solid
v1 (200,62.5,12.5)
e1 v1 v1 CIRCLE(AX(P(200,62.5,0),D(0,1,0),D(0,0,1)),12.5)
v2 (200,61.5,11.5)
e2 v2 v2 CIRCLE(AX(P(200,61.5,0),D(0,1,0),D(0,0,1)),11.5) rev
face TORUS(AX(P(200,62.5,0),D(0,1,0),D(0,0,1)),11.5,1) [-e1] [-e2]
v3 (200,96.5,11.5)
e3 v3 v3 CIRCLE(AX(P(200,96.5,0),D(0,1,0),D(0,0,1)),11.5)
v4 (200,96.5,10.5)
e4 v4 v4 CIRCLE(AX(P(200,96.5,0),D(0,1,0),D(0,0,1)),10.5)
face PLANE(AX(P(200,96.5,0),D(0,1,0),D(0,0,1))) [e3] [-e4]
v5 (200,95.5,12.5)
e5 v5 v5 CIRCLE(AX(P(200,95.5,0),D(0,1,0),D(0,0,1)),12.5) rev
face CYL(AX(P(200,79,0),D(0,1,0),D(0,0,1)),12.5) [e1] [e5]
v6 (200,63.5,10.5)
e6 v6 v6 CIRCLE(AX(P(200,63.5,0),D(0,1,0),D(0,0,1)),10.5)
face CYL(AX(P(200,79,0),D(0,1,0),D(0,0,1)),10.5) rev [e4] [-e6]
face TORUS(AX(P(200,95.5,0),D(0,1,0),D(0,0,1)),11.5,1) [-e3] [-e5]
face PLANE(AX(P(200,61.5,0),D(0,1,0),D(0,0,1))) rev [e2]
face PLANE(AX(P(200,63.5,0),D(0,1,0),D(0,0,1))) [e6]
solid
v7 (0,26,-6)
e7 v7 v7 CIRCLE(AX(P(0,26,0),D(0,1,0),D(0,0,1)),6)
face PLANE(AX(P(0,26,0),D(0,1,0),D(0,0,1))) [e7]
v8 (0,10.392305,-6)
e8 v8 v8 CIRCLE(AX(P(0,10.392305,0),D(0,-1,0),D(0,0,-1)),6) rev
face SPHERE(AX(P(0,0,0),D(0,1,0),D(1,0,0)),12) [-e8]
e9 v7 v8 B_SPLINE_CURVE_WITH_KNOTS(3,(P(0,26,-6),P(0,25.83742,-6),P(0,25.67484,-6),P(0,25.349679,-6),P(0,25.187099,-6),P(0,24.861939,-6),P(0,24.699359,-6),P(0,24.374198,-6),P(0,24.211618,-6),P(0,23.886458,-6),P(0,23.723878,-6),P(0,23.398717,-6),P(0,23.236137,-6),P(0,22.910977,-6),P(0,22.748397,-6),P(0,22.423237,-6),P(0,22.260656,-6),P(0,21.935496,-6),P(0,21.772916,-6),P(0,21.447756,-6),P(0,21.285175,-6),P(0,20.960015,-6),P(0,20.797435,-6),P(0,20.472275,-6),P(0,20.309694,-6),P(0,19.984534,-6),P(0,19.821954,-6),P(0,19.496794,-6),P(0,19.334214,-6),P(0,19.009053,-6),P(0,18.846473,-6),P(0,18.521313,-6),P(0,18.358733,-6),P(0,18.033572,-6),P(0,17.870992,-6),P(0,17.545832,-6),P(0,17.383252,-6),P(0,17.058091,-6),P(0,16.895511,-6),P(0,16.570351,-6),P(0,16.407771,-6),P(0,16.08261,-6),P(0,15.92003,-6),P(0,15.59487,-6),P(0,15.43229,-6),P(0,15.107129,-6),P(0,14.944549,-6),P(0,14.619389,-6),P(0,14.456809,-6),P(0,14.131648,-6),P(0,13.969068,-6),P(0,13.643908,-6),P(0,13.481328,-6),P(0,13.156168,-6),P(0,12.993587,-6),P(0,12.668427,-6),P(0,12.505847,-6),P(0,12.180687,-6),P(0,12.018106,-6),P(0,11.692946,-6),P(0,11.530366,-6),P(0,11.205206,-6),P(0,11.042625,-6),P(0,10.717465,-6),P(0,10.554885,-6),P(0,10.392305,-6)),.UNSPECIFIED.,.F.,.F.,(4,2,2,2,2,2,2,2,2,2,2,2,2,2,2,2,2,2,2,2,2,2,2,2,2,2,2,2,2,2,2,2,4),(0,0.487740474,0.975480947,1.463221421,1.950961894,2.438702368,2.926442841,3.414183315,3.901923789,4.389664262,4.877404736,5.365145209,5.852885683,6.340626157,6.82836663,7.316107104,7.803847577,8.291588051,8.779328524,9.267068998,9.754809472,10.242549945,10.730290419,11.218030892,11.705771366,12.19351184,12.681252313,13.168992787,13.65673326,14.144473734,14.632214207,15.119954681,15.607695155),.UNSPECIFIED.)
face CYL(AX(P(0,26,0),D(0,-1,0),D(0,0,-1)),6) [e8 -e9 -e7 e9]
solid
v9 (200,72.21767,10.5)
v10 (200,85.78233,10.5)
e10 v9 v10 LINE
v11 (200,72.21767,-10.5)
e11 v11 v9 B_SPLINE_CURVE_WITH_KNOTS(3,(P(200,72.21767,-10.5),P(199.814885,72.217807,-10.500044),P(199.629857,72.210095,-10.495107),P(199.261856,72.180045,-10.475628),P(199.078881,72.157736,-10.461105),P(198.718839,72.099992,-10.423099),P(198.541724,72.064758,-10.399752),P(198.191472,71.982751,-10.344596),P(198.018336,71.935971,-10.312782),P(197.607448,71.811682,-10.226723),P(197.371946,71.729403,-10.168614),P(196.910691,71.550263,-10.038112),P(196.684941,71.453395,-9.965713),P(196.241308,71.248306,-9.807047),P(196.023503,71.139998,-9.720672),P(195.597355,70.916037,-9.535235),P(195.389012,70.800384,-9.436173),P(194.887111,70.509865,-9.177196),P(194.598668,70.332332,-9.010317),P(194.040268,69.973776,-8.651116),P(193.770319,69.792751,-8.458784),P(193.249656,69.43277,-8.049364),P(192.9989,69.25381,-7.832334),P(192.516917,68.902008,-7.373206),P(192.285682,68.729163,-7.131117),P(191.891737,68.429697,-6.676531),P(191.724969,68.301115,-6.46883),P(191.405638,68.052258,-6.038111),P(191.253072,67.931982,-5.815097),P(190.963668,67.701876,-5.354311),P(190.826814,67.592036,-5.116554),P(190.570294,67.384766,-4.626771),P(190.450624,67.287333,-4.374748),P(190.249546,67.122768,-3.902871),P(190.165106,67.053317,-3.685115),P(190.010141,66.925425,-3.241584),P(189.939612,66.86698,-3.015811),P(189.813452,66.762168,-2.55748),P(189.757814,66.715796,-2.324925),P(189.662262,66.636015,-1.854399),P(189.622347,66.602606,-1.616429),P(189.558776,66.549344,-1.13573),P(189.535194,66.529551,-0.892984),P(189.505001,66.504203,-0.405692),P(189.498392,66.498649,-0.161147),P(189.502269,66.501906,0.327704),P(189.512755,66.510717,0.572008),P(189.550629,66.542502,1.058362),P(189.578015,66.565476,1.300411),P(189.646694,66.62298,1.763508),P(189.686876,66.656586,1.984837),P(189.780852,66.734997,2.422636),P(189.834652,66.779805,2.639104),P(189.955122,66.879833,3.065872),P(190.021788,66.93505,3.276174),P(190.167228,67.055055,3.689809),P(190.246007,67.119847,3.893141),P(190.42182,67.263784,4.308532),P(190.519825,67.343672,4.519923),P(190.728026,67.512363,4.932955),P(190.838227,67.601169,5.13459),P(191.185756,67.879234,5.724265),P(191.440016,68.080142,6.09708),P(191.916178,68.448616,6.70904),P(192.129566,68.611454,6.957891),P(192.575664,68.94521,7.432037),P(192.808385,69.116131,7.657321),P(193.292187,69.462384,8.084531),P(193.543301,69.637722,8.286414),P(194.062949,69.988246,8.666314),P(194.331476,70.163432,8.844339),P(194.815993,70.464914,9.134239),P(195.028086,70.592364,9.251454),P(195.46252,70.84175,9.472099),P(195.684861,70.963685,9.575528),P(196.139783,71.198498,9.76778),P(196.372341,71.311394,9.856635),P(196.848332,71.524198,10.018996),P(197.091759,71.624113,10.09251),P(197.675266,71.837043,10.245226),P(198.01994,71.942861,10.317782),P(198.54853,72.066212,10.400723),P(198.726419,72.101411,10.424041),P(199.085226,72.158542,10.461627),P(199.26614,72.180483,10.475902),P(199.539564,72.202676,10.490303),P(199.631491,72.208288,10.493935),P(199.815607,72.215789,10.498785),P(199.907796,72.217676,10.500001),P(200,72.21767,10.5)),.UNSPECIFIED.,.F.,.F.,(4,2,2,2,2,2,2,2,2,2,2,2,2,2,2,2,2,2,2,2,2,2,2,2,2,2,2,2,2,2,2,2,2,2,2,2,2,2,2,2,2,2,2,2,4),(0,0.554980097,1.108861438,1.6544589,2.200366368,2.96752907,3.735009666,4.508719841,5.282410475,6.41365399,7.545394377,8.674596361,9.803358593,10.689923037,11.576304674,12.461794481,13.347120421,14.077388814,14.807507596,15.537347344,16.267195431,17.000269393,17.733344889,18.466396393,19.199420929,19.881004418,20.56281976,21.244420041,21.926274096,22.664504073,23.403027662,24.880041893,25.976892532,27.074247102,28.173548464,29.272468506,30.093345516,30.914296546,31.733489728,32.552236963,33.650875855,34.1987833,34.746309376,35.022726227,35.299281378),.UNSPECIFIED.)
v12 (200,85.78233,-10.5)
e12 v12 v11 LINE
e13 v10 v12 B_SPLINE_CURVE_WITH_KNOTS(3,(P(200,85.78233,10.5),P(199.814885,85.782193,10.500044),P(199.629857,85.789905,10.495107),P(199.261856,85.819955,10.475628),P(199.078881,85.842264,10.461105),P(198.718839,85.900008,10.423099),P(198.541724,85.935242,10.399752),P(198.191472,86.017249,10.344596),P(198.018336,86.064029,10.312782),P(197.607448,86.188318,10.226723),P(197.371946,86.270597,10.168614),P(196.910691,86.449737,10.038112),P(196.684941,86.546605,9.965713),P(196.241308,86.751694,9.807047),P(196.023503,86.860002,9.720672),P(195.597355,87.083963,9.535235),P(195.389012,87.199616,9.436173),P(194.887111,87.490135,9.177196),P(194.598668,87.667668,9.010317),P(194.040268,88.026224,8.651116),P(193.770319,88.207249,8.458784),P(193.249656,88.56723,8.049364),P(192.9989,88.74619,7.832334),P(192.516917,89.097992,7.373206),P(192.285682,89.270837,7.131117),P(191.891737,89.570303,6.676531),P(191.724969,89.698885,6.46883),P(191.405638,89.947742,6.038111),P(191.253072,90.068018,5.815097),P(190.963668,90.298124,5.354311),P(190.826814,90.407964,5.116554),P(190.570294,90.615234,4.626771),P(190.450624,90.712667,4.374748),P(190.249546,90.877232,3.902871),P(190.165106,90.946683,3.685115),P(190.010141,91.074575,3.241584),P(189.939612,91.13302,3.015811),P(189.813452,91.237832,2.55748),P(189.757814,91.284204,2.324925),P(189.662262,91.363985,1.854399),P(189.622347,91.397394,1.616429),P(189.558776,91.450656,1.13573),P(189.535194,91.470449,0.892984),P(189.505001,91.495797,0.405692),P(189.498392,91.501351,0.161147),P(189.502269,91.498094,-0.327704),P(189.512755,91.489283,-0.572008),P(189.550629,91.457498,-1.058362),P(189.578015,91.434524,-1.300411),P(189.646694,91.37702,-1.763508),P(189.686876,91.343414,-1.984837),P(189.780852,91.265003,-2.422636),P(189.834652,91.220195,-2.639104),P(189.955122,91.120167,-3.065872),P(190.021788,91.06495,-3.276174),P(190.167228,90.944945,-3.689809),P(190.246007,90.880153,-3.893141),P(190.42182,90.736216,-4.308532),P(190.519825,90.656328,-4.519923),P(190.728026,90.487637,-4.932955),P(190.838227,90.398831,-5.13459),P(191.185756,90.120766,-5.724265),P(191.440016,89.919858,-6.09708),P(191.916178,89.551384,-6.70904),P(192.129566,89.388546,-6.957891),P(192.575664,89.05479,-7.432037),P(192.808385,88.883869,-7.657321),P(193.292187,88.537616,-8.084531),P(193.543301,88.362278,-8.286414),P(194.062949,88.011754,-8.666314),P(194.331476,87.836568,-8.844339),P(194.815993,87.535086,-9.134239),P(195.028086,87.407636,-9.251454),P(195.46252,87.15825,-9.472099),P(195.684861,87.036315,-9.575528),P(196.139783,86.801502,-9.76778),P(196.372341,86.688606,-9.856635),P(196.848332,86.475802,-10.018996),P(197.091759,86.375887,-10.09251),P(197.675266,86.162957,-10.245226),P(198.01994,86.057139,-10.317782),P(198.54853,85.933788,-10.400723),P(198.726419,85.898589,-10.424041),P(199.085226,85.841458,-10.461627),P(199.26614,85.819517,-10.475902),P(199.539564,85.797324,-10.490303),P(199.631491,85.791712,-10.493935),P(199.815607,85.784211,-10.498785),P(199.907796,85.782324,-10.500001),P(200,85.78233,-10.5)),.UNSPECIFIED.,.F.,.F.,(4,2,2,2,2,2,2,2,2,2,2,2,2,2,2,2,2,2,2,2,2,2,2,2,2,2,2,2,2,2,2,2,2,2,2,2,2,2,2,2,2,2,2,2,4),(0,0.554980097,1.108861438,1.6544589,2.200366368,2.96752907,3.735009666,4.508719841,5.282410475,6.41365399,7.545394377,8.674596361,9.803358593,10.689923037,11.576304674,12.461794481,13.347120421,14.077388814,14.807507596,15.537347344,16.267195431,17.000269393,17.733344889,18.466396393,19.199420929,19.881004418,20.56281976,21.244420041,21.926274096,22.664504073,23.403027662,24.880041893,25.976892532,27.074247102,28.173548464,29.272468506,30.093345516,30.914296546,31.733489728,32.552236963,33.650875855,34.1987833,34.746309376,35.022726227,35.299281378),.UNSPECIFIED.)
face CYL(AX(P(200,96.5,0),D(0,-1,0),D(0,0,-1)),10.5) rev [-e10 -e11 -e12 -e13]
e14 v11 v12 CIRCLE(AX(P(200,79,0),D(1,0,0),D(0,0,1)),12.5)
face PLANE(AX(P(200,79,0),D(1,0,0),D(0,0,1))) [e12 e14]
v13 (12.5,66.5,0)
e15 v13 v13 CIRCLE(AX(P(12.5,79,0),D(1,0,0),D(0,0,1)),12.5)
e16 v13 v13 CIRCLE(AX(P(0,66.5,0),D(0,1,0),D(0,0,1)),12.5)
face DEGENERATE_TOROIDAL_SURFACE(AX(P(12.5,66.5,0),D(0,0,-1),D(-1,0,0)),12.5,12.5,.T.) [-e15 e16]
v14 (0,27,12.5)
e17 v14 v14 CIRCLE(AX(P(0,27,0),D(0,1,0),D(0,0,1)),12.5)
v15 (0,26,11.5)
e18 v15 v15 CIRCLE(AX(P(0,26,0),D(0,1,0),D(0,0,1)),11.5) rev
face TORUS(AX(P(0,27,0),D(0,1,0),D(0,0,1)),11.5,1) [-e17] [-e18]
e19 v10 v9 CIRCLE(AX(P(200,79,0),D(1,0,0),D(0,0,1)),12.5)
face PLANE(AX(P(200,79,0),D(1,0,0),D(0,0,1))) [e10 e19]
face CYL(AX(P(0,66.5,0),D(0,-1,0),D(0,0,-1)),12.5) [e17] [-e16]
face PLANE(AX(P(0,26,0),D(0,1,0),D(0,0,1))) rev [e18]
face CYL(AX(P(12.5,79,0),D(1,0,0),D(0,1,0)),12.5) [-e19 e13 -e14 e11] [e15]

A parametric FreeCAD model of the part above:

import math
import FreeCAD as App
import Part
import Sketcher

V = App.Vector


def edges_at(feature, points):
    """Names of the edges that pass closest to the given points."""
    edges = feature.Shape.Edges
    near = lambda p: min(range(len(edges)), key=lambda i: edges[i].distToShape(Part.Vertex(*p))[0])
    return sorted({f"Edge{near(p) + 1}" for p in points})


def faces_at(feature, points):
    """Names of the faces that lie closest to the given points."""
    faces = feature.Shape.Faces
    near = lambda p: min(range(len(faces)), key=lambda i: faces[i].distToShape(Part.Vertex(*p))[0])
    return sorted({f"Face{near(p) + 1}" for p in points})

doc = App.newDocument("Part")
body = doc.addObject("PartDesign::Body", "Body")

sketch1 = body.newObject("Sketcher::SketchObject", "Sketch")
sketch1.AttachmentSupport = (doc.getObject("XY_Plane"), [""])
sketch1.MapMode = "FlatFace"
sketch1.addGeometry([
    Part.LineSegment(V(0, 12, 0), V(0, -12, 0)),
    Part.ArcOfCircle(Part.Circle(V(0, 0, 0), V(0, 0, 1), 12), math.radians(-90), math.radians(90)),
], False)
sketch1.addConstraint([
    Sketcher.Constraint("Coincident", 0, 1, 1, 2),
    Sketcher.Constraint("Coincident", 1, 1, 0, 2),
    Sketcher.Constraint("Vertical", 0),
    Sketcher.Constraint("Coincident", 1, 3, -1, 1),
    Sketcher.Constraint("PointOnObject", 0, 1, -2),
    Sketcher.Constraint("Radius", 1, 12.0),
])
revolution = body.newObject("PartDesign::Revolution", "Revolution")
revolution.Profile = sketch1
revolution.ReferenceAxis = (sketch1, ["V_Axis"])
revolution.Angle = 360

sketch2 = body.newObject("Sketcher::SketchObject", "Sketch001")
sketch2.AttachmentSupport = (doc.getObject("XZ_Plane"), [""])
sketch2.MapMode = "FlatFace"
sketch2.addGeometry(Part.Circle(V(0, 0, 0), V(0, 0, 1), 6), False)
sketch2.addConstraint([
    Sketcher.Constraint("Coincident", 0, 3, -1, 1),
    Sketcher.Constraint("Diameter", 0, 12.0),
])
pad1 = body.newObject("PartDesign::Pad", "Pad")
pad1.Profile = sketch2
pad1.Length = 26
pad1.Reversed = True
body2 = doc.addObject("PartDesign::Body", "Body001")

sketch3 = body2.newObject("Sketcher::SketchObject", "Sketch002")
sketch3.AttachmentSupport = (doc.getObject("XZ_Plane001"), [""])
sketch3.MapMode = "FlatFace"
sketch3.AttachmentOffset = App.Placement(V(0, 0, -26), App.Rotation())
sketch3.addGeometry(Part.Circle(V(0, 0, 0), V(0, 0, 1), 12), False)
sketch3.addConstraint([
    Sketcher.Constraint("Coincident", 0, 3, -1, 1),
    Sketcher.Constraint("Diameter", 0, 25.0),
])

sketch4 = body2.newObject("Sketcher::SketchObject", "Sketch003")
sketch4.AttachmentSupport = (doc.getObject("XY_Plane001"), [""])
sketch4.MapMode = "FlatFace"
sketch4.addGeometry([
    Part.LineSegment(V(0, 26, 0), V(0, 66, 0)),
    Part.ArcOfCircle(Part.Circle(V(12, 67, 0), V(0, 0, 1), 12), math.radians(90), math.radians(180)),
    Part.LineSegment(V(12, 79, 0), V(200, 79, 0)),
], False)
sketch4.addConstraint([
    Sketcher.Constraint("Tangent", 0, 2, 1, 2),
    Sketcher.Constraint("Tangent", 1, 1, 2, 1),
    Sketcher.Constraint("Vertical", 0),
    Sketcher.Constraint("Horizontal", 2),
    Sketcher.Constraint("PointOnObject", 0, 1, -2),
    Sketcher.Constraint("Radius", 1, 12.5),
    Sketcher.Constraint("DistanceX", 2, 1, 2, 2, 187.5),
    Sketcher.Constraint("DistanceY", 0, 1, 0, 2, 40.5),
    Sketcher.Constraint("DistanceY", -1, 1, 0, 1, 26.0),
])
doc.recompute()

additivepipe = body2.newObject("PartDesign::AdditivePipe", "AdditivePipe")
additivepipe.Profile = sketch3
additivepipe.Spine = (sketch4, ["Edge1", "Edge2", "Edge3"])

sketch5 = body2.newObject("Sketcher::SketchObject", "Sketch004")
sketch5.AttachmentSupport = (doc.getObject("XZ_Plane001"), [""])
sketch5.MapMode = "FlatFace"
sketch5.AttachmentOffset = App.Placement(V(0, 0, -63.5), App.Rotation())
sketch5.addGeometry(Part.Circle(V(200, 0, 0), V(0, 0, 1), 10), False)
sketch5.addConstraint([
    Sketcher.Constraint("PointOnObject", 0, 3, -1),
    Sketcher.Constraint("Diameter", 0, 21.0),
    Sketcher.Constraint("DistanceX", -1, 1, 0, 3, 200.0),
])
pocket1 = body2.newObject("PartDesign::Pocket", "Pocket")
pocket1.Profile = sketch5
pocket1.Type = "ThroughAll"
doc.recompute()

fillet = body2.newObject("PartDesign::Fillet", "Fillet")
fillet.Base = (pocket1, edges_at(pocket1, [(-12.5, 26, 0)]))
fillet.Radius = 1
body3 = doc.addObject("PartDesign::Body", "Body002")

sketch6 = body3.newObject("Sketcher::SketchObject", "Sketch005")
sketch6.AttachmentSupport = (doc.getObject("XZ_Plane002"), [""])
sketch6.MapMode = "FlatFace"
sketch6.AttachmentOffset = App.Placement(V(0, 0, -96.5), App.Rotation())
sketch6.addGeometry(Part.Circle(V(200, 0, 0), V(0, 0, 1), 12), False)
sketch6.addConstraint([
    Sketcher.Constraint("PointOnObject", 0, 3, -1),
    Sketcher.Constraint("Diameter", 0, 25.0),
    Sketcher.Constraint("DistanceX", -1, 1, 0, 3, 200.0),
])

sketch7 = body3.newObject("Sketcher::SketchObject", "Sketch006")
sketch7.AttachmentSupport = (doc.getObject("XY_Plane002"), [""])
sketch7.MapMode = "FlatFace"
sketch7.addGeometry(Part.LineSegment(V(200, 62, 0), V(200, 96, 0)), False)
sketch7.addConstraint([
    Sketcher.Constraint("Vertical", 0),
    Sketcher.Constraint("DistanceY", 0, 1, 0, 2, 35.0),
    Sketcher.Constraint("DistanceX", -1, 1, 0, 1, 200.0),
    Sketcher.Constraint("DistanceY", -1, 1, 0, 1, 61.5),
])
doc.recompute()

additivepipe2 = body3.newObject("PartDesign::AdditivePipe", "AdditivePipe001")
additivepipe2.Profile = sketch6
additivepipe2.Spine = (sketch7, ["Edge1"])
doc.recompute()

thickness = body3.newObject("PartDesign::Thickness", "Thickness")
thickness.Base = (additivepipe2, faces_at(additivepipe2, [(200, 96.5, 0)]))
thickness.Value = 2
thickness.Reversed = True
thickness.Join = "Intersection"
doc.recompute()

fillet2 = body3.newObject("PartDesign::Fillet", "Fillet001")
fillet2.Base = (thickness, edges_at(thickness, [(187.5, 96.5, 0), (187.5, 61.5, 0)]))
fillet2.Radius = 1

doc.recompute()
